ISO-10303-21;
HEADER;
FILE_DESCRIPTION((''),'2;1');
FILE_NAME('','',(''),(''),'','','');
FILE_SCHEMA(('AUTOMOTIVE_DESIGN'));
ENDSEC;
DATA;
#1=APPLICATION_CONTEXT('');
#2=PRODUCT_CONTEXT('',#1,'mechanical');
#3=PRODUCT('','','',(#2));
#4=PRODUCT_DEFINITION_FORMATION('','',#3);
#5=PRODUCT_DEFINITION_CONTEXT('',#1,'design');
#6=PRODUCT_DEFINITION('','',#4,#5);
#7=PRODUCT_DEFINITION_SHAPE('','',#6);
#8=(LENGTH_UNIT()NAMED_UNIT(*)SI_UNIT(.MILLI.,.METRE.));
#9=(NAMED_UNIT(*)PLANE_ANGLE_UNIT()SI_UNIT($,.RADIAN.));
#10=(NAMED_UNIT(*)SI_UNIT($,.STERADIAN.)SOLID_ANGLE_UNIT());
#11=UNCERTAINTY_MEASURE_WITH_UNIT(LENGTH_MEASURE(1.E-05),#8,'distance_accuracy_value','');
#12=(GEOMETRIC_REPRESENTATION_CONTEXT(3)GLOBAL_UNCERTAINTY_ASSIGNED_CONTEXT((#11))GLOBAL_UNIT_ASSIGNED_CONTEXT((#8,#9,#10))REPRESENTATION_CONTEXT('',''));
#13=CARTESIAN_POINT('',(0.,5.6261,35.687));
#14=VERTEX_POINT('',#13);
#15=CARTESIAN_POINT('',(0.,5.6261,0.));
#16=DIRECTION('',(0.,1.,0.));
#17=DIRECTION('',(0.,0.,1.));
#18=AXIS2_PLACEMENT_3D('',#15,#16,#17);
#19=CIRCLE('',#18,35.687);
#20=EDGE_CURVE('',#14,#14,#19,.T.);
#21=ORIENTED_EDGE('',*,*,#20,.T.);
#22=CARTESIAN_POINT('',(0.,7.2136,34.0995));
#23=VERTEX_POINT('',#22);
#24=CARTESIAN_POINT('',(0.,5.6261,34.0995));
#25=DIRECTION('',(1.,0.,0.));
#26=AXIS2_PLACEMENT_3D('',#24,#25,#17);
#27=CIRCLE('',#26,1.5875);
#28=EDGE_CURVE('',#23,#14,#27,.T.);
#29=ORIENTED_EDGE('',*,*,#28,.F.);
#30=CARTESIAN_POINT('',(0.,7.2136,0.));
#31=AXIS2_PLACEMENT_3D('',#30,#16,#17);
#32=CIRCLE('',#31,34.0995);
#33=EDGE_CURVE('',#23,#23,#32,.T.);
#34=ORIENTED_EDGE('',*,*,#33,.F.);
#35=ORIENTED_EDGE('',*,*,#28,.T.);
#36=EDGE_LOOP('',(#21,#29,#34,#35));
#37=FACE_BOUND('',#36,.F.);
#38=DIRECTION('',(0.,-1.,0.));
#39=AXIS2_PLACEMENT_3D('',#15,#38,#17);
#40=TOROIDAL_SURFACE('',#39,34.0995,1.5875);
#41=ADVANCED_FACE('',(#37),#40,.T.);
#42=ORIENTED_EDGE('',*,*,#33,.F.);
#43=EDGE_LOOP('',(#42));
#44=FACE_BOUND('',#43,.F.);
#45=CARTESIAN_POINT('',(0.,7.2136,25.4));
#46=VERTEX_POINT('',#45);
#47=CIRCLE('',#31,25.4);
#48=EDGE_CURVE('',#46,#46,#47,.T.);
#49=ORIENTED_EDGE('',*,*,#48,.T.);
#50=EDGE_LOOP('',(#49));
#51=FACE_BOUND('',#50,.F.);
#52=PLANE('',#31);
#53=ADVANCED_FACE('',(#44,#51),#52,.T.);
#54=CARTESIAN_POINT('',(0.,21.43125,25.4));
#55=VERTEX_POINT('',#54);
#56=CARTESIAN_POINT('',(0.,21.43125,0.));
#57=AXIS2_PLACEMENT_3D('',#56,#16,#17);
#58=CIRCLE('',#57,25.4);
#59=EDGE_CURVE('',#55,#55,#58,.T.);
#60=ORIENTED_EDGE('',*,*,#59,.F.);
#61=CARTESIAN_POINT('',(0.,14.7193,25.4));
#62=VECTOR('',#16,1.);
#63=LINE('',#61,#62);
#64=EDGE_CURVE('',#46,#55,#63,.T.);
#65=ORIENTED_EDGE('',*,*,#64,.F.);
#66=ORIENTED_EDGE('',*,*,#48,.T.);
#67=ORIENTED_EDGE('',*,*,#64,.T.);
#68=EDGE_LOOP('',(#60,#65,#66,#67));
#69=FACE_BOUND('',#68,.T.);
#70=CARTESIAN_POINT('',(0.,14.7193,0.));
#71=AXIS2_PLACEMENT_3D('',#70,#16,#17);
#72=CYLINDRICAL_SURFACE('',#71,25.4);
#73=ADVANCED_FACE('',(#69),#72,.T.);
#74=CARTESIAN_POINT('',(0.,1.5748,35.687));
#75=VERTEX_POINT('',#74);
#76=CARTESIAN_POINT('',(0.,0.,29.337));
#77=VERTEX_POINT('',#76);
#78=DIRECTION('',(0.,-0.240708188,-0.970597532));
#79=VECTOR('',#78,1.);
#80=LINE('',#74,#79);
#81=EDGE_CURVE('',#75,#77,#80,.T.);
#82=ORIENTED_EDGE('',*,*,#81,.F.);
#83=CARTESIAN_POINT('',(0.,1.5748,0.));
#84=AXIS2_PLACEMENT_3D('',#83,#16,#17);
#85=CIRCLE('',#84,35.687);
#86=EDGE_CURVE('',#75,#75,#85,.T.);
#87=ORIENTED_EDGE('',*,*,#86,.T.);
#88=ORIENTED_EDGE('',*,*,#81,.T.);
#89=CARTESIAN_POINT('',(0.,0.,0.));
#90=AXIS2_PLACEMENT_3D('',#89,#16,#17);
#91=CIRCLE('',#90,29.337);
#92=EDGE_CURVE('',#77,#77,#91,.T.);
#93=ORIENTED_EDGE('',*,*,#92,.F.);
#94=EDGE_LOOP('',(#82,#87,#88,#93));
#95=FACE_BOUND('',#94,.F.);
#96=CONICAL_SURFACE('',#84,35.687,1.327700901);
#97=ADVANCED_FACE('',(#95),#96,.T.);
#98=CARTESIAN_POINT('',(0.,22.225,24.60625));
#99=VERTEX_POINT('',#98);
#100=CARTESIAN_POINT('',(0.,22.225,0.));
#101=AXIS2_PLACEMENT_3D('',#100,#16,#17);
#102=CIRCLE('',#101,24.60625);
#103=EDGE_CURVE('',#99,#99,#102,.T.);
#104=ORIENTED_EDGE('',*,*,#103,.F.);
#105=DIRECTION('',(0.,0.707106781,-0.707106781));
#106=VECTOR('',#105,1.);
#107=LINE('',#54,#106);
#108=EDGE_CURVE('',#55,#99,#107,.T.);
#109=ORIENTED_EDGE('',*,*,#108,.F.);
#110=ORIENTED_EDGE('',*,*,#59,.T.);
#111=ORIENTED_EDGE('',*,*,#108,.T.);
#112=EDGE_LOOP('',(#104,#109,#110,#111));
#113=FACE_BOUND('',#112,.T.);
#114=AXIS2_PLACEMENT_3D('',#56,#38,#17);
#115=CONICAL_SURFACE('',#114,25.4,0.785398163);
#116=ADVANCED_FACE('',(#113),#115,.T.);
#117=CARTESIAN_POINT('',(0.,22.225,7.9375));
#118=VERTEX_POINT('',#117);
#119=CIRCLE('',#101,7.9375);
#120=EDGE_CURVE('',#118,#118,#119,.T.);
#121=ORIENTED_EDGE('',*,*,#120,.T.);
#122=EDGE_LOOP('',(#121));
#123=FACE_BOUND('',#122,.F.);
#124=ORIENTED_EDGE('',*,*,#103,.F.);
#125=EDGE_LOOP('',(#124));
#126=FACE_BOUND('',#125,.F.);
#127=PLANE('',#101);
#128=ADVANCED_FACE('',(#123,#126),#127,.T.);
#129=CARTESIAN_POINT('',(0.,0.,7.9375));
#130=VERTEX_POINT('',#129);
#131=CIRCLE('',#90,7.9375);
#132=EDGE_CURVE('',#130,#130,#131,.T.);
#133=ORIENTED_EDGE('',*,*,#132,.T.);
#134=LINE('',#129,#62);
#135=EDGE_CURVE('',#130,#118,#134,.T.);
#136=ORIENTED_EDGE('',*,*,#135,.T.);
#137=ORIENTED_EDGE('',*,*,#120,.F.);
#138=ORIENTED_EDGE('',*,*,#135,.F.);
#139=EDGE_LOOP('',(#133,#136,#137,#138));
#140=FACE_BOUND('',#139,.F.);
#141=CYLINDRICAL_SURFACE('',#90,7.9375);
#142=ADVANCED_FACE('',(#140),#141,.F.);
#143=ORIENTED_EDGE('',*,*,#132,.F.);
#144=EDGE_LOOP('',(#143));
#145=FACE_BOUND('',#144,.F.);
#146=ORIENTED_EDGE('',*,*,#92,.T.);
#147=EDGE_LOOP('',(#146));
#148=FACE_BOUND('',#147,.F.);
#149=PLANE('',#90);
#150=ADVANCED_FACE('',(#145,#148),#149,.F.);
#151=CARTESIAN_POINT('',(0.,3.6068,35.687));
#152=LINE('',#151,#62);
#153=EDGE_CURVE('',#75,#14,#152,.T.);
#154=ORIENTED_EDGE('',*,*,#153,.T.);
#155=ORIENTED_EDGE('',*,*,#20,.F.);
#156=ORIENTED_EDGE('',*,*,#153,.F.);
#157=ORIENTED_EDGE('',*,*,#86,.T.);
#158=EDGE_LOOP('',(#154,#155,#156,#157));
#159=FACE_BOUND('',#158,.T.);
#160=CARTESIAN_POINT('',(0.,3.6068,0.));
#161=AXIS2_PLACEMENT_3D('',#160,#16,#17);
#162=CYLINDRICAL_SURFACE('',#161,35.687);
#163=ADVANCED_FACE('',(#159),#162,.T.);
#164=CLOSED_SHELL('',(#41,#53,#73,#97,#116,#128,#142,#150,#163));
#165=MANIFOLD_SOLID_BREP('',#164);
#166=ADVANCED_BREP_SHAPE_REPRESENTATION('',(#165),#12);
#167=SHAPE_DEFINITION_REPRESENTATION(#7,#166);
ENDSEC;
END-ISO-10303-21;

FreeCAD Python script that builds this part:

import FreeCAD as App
import Part
import Sketcher
from FreeCAD import Vector
Q = App.Units.Quantity


def edges_at(feature, points):
    """Names of the edges that pass closest to the given points."""
    edges = feature.Shape.Edges
    near = lambda p: min(range(len(edges)), key=lambda i: edges[i].distToShape(Part.Vertex(*p))[0])
    return sorted({f"Edge{near(p) + 1}" for p in points})

doc = App.newDocument("Part")
params = doc.addObject("Spreadsheet::Sheet", "Params")
for row, (alias, value) in enumerate([
    ("sketch1_width", "0.875 in"),
    ("sketch1_width2", "0.591 in"),
    ("sketch1_height", "0.6875 in"),
    ("sketch1_height2", "0.405 in"),
    ("revolution_angle", "360 deg"),
    ("fillet_radius", "0.0625 in"),
    ("chamfer_size", "0.03125 in"),
    ("chamfer2_size", "0.062 in"),
    ("chamfer2_size2", "0.25 in"),
], start=1):
    params.set(f"A{row}", alias)
    params.set(f"B{row}", "=" + value)
    params.setAlias(f"B{row}", alias)

body = doc.addObject("PartDesign::Body", "Body")

sketch1 = body.newObject("Sketcher::SketchObject", "Sketch")
sketch1.AttachmentSupport = (doc.getObject("YZ_Plane"), [""])
sketch1.MapMode = "FlatFace"
sketch1.addGeometry(Part.LineSegment(Vector(0, 36, 0), Vector(0, 8, 0)), False)
sketch1.addGeometry(Part.LineSegment(Vector(0, 8, 0), Vector(22, 8, 0)), False)
sketch1.addGeometry(Part.LineSegment(Vector(22, 8, 0), Vector(22, 25, 0)), False)
sketch1.addGeometry(Part.LineSegment(Vector(22, 25, 0), Vector(7, 25, 0)), False)
sketch1.addGeometry(Part.LineSegment(Vector(7, 25, 0), Vector(7, 36, 0)), False)
sketch1.addGeometry(Part.LineSegment(Vector(7, 36, 0), Vector(0, 36, 0)), False)
sketch1.addConstraint(Sketcher.Constraint("Coincident", 0, 2, 1, 1))
sketch1.addConstraint(Sketcher.Constraint("Coincident", 1, 2, 2, 1))
sketch1.addConstraint(Sketcher.Constraint("Coincident", 2, 2, 3, 1))
sketch1.addConstraint(Sketcher.Constraint("Coincident", 3, 2, 4, 1))
sketch1.addConstraint(Sketcher.Constraint("Coincident", 4, 2, 5, 1))
sketch1.addConstraint(Sketcher.Constraint("Coincident", 5, 2, 0, 1))
sketch1.addConstraint(Sketcher.Constraint("Vertical", 0))
sketch1.addConstraint(Sketcher.Constraint("Horizontal", 1))
sketch1.addConstraint(Sketcher.Constraint("Vertical", 2))
sketch1.addConstraint(Sketcher.Constraint("Horizontal", 3))
sketch1.addConstraint(Sketcher.Constraint("Vertical", 4))
sketch1.addConstraint(Sketcher.Constraint("Horizontal", 5))
sketch1.addConstraint(Sketcher.Constraint("PointOnObject", 0, 2, -2))
sketch1.addConstraint(Sketcher.Constraint("DistanceY", -1, 1, 2, 2, Q("1 in")))
sketch1.addConstraint(Sketcher.Constraint("DistanceX", 1, 1, 1, 2, Q("0.875 in")))
sketch1.addConstraint(Sketcher.Constraint("DistanceX", 3, 2, 3, 1, Q("0.591 in")))
sketch1.addConstraint(Sketcher.Constraint("DistanceY", 2, 1, 2, 2, Q("0.6875 in")))
sketch1.addConstraint(Sketcher.Constraint("DistanceY", 4, 1, 4, 2, Q("0.405 in")))
sketch1.setExpression("Constraints[14]", "Params.sketch1_width")
sketch1.setExpression("Constraints[15]", "Params.sketch1_width2")
sketch1.setExpression("Constraints[16]", "Params.sketch1_height")
sketch1.setExpression("Constraints[17]", "Params.sketch1_height2")
revolution = body.newObject("PartDesign::Revolution", "Revolution")
revolution.Profile = sketch1
revolution.ReferenceAxis = (sketch1, ["H_Axis"])
revolution.setExpression("Angle", "Params.revolution_angle")
doc.recompute()

fillet = body.newObject("PartDesign::Fillet", "Fillet")
fillet.Base = (revolution, edges_at(revolution, [(0, 7.214, -35.687)]))
fillet.setExpression("Radius", "Params.fillet_radius")
doc.recompute()

chamfer = body.newObject("PartDesign::Chamfer", "Chamfer")
chamfer.Base = (fillet, edges_at(fillet, [(0, 22.225, -25.4)]))
chamfer.setExpression("Size", "Params.chamfer_size")
doc.recompute()

chamfer2 = body.newObject("PartDesign::Chamfer", "Chamfer001")
chamfer2.Base = (chamfer, edges_at(chamfer, [(0, 0, -35.687), (0, 5.626, -35.687)]))
chamfer2.ChamferType = "Two distances"
chamfer2.setExpression("Size", "Params.chamfer2_size")
chamfer2.setExpression("Size2", "Params.chamfer2_size2")

doc.recompute()
